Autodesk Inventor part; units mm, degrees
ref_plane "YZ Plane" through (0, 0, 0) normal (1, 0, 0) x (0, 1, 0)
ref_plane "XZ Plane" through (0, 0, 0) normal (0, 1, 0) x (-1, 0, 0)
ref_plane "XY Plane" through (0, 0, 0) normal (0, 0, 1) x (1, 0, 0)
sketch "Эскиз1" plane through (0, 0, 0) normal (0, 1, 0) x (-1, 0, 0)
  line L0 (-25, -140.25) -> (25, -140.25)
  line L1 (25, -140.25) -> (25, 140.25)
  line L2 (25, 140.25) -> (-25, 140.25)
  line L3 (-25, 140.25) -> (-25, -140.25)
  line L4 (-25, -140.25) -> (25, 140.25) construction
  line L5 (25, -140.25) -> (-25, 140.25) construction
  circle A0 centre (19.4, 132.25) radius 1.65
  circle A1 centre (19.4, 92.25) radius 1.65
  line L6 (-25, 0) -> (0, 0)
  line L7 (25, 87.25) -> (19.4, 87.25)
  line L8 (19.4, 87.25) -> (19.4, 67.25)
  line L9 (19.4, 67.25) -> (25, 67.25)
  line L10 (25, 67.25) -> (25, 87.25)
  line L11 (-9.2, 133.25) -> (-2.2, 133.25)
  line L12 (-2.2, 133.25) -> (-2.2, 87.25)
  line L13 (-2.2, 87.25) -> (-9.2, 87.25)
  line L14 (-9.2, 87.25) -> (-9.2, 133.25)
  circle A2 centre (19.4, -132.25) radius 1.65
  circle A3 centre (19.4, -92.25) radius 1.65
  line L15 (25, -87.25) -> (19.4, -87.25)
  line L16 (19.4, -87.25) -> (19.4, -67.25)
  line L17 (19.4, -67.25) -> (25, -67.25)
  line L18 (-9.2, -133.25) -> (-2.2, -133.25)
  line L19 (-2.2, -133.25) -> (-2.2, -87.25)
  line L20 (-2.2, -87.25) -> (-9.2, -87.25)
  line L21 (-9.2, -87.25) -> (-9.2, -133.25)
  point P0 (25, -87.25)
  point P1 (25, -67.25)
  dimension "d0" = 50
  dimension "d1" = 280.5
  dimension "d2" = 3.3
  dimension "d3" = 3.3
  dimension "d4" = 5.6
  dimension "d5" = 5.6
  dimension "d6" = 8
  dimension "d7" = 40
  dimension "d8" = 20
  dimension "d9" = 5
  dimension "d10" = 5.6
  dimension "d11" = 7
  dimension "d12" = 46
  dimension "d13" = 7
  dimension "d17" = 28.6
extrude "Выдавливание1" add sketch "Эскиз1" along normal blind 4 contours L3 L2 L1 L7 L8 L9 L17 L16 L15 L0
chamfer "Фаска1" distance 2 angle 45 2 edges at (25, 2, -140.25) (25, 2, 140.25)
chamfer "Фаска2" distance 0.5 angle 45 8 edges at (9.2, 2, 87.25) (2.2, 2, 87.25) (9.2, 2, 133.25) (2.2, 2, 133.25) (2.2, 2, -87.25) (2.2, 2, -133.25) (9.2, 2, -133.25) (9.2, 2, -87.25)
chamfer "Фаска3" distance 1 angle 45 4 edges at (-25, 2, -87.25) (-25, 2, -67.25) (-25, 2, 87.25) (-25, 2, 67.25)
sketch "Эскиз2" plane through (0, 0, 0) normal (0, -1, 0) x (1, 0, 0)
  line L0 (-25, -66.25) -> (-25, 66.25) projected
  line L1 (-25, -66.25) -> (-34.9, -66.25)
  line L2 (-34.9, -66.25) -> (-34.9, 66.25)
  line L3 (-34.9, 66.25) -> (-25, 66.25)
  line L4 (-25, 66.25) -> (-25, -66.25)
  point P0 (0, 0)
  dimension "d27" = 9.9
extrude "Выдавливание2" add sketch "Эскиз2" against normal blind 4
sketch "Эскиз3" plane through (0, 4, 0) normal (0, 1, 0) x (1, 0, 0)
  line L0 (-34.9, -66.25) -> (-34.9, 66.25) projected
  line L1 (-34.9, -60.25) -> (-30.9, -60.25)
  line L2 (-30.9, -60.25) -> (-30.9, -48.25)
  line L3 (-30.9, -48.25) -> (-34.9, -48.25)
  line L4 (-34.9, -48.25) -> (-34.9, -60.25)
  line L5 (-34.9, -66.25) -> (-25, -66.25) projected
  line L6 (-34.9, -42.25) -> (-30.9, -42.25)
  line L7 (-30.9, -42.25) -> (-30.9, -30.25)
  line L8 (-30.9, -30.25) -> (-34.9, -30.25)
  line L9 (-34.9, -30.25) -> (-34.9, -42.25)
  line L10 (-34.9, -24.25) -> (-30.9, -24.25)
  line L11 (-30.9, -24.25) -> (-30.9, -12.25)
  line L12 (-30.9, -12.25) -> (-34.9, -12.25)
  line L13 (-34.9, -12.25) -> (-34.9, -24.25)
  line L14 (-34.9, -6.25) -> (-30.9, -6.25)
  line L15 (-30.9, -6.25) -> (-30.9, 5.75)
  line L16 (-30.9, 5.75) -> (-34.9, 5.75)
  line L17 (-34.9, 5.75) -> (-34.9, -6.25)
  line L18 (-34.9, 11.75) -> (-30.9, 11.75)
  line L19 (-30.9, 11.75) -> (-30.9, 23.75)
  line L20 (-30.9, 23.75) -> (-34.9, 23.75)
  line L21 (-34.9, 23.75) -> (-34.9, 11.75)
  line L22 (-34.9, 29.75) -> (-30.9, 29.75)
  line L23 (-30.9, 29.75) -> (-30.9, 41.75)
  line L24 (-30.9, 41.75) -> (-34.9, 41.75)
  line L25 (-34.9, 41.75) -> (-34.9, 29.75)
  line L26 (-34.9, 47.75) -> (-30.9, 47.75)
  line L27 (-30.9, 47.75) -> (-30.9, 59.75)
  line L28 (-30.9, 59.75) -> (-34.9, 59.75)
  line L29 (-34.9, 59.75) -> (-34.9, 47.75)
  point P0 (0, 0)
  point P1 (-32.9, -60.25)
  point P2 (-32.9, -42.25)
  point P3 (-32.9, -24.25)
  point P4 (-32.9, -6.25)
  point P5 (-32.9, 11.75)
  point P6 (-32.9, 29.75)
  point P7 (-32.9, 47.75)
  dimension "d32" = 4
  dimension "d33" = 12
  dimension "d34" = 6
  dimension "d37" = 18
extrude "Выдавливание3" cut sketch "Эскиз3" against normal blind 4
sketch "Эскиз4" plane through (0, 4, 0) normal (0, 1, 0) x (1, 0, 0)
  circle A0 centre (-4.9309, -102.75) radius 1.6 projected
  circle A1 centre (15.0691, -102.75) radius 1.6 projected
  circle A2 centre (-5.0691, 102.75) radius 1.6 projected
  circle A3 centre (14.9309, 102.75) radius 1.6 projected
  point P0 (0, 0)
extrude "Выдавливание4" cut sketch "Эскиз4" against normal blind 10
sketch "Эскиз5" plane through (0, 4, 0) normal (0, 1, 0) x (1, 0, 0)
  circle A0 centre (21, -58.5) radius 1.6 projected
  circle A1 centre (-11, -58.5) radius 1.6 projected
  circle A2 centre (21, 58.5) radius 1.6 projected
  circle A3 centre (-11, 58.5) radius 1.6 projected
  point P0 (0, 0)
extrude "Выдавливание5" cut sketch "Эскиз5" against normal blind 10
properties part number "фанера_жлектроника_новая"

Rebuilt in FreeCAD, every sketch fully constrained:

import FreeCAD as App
import Part
import Sketcher

V = App.Vector


def edges_at(feature, points):
    """Names of the edges that pass closest to the given points."""
    edges = feature.Shape.Edges
    near = lambda p: min(range(len(edges)), key=lambda i: edges[i].distToShape(Part.Vertex(*p))[0])
    return sorted({f"Edge{near(p) + 1}" for p in points})


def add_polygon(sketch, points):
    """Adds a closed chain of lines whose ends are joined by coincident constraints."""
    first, n = sketch.GeometryCount, len(points)
    for a, b in zip(points, points[1:] + points[:1]):
        sketch.addGeometry(Part.LineSegment(App.Vector(*a, 0), App.Vector(*b, 0)), False)
    for i in range(n):
        sketch.addConstraint(Sketcher.Constraint("Coincident", first + i, 2, first + (i + 1) % n, 1))

doc = App.newDocument("Part")
params = doc.addObject("Spreadsheet::Sheet", "Params")
for row, (alias, value) in enumerate([
    ("sketch1_diameter", "3.3 mm"),
    ("sketch1_width", "50 mm"),
    ("sketch1_width2", "7 mm"),
    ("sketch1_height", "20 mm"),
    ("sketch1_height2", "46 mm"),
    ("pad1_length", "4 mm"),
    ("chamfer_size", "2 mm"),
    ("chamfer2_size", "0.5 mm"),
    ("chamfer3_size", "1 mm"),
    ("sketch2_width", "9.9 mm"),
    ("sketch2_height", "132.5 mm"),
    ("pad2_length", "4 mm"),
    ("sketch3_width", "4 mm"),
    ("sketch3_height", "12 mm"),
    ("pocket1_length", "4 mm"),
    ("sketch4_diameter", "3.2 mm"),
    ("pocket2_length", "10 mm"),
    ("sketch5_diameter", "3.2 mm"),
    ("pocket3_length", "10 mm"),
], start=1):
    params.set(f"A{row}", alias)
    params.set(f"B{row}", "=" + value)
    params.setAlias(f"B{row}", alias)

body = doc.addObject("PartDesign::Body", "Body")

# Sketch on XZ plane
sketch1 = body.newObject("Sketcher::SketchObject", "Sketch")
sketch1.AttachmentSupport = (doc.getObject("XZ_Plane"), [""])
sketch1.MapMode = "FlatFace"
add_polygon(sketch1, [(25, 140.2), (25, -140.2), (-25, -140.2), (-25, -87.2), (-19.4, -87.2), (-19.4, -67.2), (-25, -67.2), (-25, 67.2), (-19.4, 67.2), (-19.4, 87.2), (-25, 87.2), (-25, 140.2)])  # lines 0-11
add_polygon(sketch1, [(2.2, -133.2), (9.2, -133.2), (9.2, -87.2), (2.2, -87.2)])  # lines 12-15
sketch1.addGeometry(Part.Circle(V(-19.4, -132.2, 0), V(0, 0, 1), 1.6), False)  # 16
sketch1.addGeometry(Part.Circle(V(-19.4, -92.2, 0), V(0, 0, 1), 1.6), False)  # 17
add_polygon(sketch1, [(9.2, 87.2), (9.2, 133.2), (2.2, 133.2), (2.2, 87.2)])  # lines 18-21
sketch1.addGeometry(Part.Circle(V(-19.4, 92.2, 0), V(0, 0, 1), 1.6), False)  # 22
sketch1.addGeometry(Part.Circle(V(-19.4, 132.2, 0), V(0, 0, 1), 1.6), False)  # 23
sketch1.addConstraint([
    Sketcher.Constraint("Vertical", 0),
    Sketcher.Constraint("Horizontal", 1),
    Sketcher.Constraint("Vertical", 2),
    Sketcher.Constraint("Horizontal", 3),
    Sketcher.Constraint("Vertical", 4),
    Sketcher.Constraint("Horizontal", 5),
    Sketcher.Constraint("Vertical", 6),
    Sketcher.Constraint("Horizontal", 7),
    Sketcher.Constraint("Vertical", 8),
    Sketcher.Constraint("Horizontal", 9),
    Sketcher.Constraint("Vertical", 10),
    Sketcher.Constraint("Horizontal", 11),
    Sketcher.Constraint("Horizontal", 12),
    Sketcher.Constraint("Vertical", 13),
    Sketcher.Constraint("Horizontal", 14),
    Sketcher.Constraint("Vertical", 15),
    Sketcher.Constraint("Vertical", 18),
    Sketcher.Constraint("Horizontal", 19),
    Sketcher.Constraint("Vertical", 20),
    Sketcher.Constraint("Horizontal", 21),
    Sketcher.Constraint("Equal", 16, 17),
    Sketcher.Constraint("Equal", 17, 22),
    Sketcher.Constraint("Equal", 22, 23),
    Sketcher.Constraint("Symmetric", 0, 2, 10, 2, -1, 1),
    Sketcher.Constraint("Symmetric", 17, 3, 22, 3, -1),
    Sketcher.Constraint("Symmetric", 16, 3, 23, 3, -1),
    Sketcher.Constraint("Symmetric", 4, 2, 7, 2, -1),
    Sketcher.Constraint("Symmetric", 2, 2, 9, 2, -1),
    Sketcher.Constraint("Symmetric", 12, 2, 18, 2, -1),
    Sketcher.Constraint("Symmetric", 14, 2, 20, 2, -1),
    Sketcher.Constraint("Horizontal", 3, 2, 13, 2),
    Sketcher.Constraint("Vertical", 16, 3, 17, 3),
    Sketcher.Constraint("Vertical", 23, 3, 3, 2),
    Sketcher.Constraint("Vertical", 2, 2, 5, 2),
    Sketcher.Constraint("Diameter", 16, 3.3),
    Sketcher.Constraint("DistanceX", 1, 2, 1, 1, 50.0),
    Sketcher.Constraint("DistanceX", 12, 1, 12, 2, 7.0),
    Sketcher.Constraint("DistanceY", 4, 1, 4, 2, 20.0),
    Sketcher.Constraint("DistanceY", 13, 1, 13, 2, 46.0),
    Sketcher.Constraint("DistanceX", 3, 1, 3, 2, 5.6),
    Sketcher.Constraint("DistanceY", 0, 2, 0, 1, 280.5),
    Sketcher.Constraint("DistanceY", 16, 3, 17, 3, 40.0),
    Sketcher.Constraint("DistanceY", 0, 2, 16, 3, 8.0),
    Sketcher.Constraint("DistanceY", 17, 3, 2, 2, 5.0),
    Sketcher.Constraint("DistanceX", 16, 3, 12, 2, 28.6),
])
sketch1.setExpression("Constraints[54]", "Params.sketch1_diameter")
sketch1.setExpression("Constraints[55]", "Params.sketch1_width")
sketch1.setExpression("Constraints[56]", "Params.sketch1_width2")
sketch1.setExpression("Constraints[57]", "Params.sketch1_height")
sketch1.setExpression("Constraints[58]", "Params.sketch1_height2")
pad1 = body.newObject("PartDesign::Pad", "Pad")
pad1.Profile = sketch1
pad1.setExpression("Length", "Params.pad1_length")
pad1.Reversed = True
doc.recompute()

chamfer = body.newObject("PartDesign::Chamfer", "Chamfer")
chamfer.Base = (pad1, edges_at(pad1, [(25, 2, -140.25), (25, 2, 140.25)]))
chamfer.setExpression("Size", "Params.chamfer_size")
doc.recompute()

chamfer2 = body.newObject("PartDesign::Chamfer", "Chamfer001")
chamfer2.Base = (chamfer, edges_at(chamfer, [
    (9.2, 2, 87.25),
    (2.2, 2, 87.25),
    (9.2, 2, 133.25),
    (2.2, 2, 133.25),
    (2.2, 2, -87.25),
    (2.2, 2, -133.25),
    (9.2, 2, -133.25),
    (9.2, 2, -87.25),
]))
chamfer2.setExpression("Size", "Params.chamfer2_size")
doc.recompute()

chamfer3 = body.newObject("PartDesign::Chamfer", "Chamfer002")
chamfer3.Base = (chamfer2, edges_at(chamfer2, [
    (-25, 2, -87.25),
    (-25, 2, -67.25),
    (-25, 2, 87.25),
    (-25, 2, 67.25),
]))
chamfer3.setExpression("Size", "Params.chamfer3_size")

# Sketch on XZ plane
sketch2 = body.newObject("Sketcher::SketchObject", "Sketch001")
sketch2.AttachmentSupport = (doc.getObject("XZ_Plane"), [""])
sketch2.MapMode = "FlatFace"
add_polygon(sketch2, [(-35, -66), (-25, -66), (-25, 66), (-35, 66)])  # lines 0-3
sketch2.addConstraint([
    Sketcher.Constraint("Horizontal", 0),
    Sketcher.Constraint("Vertical", 1),
    Sketcher.Constraint("Horizontal", 2),
    Sketcher.Constraint("Vertical", 3),
    Sketcher.Constraint("DistanceX", 0, 1, 0, 2, 9.9),
    Sketcher.Constraint("DistanceY", 1, 1, 1, 2, 132.5),
    Sketcher.Constraint("DistanceX", 0, 2, -1, 1, 25.0),
    Sketcher.Constraint("DistanceY", 0, 2, -1, 1, 66.25),
])
sketch2.setExpression("Constraints[8]", "Params.sketch2_width")
sketch2.setExpression("Constraints[9]", "Params.sketch2_height")
pad2 = body.newObject("PartDesign::Pad", "Pad001")
pad2.Profile = sketch2
pad2.setExpression("Length", "Params.pad2_length")
pad2.Reversed = True

# Sketch on XZ plane
sketch3 = body.newObject("Sketcher::SketchObject", "Sketch002")
sketch3.AttachmentSupport = (doc.getObject("XZ_Plane"), [""])
sketch3.MapMode = "FlatFace"
sketch3.AttachmentOffset = App.Placement(V(0, 0, -4), App.Rotation())
add_polygon(sketch3, [(-34.9, -59.8), (-34.9, -47.8), (-30.9, -47.8), (-30.9, -59.8)])  # lines 0-3
add_polygon(sketch3, [(-34.9, -41.8), (-34.9, -29.8), (-30.9, -29.8), (-30.9, -41.8)])  # lines 4-7
add_polygon(sketch3, [(-34.9, -23.8), (-34.9, -11.8), (-30.9, -11.8), (-30.9, -23.8)])  # lines 8-11
add_polygon(sketch3, [(-34.9, -5.8), (-34.9, 6.2), (-30.9, 6.2), (-30.9, -5.8)])  # lines 12-15
add_polygon(sketch3, [(-34.9, 12.2), (-34.9, 24.2), (-30.9, 24.2), (-30.9, 12.2)])  # lines 16-19
add_polygon(sketch3, [(-34.9, 30.2), (-34.9, 42.2), (-30.9, 42.2), (-30.9, 30.2)])  # lines 20-23
add_polygon(sketch3, [(-34.9, 48.2), (-34.9, 60.2), (-30.9, 60.2), (-30.9, 48.2)])  # lines 24-27
sketch3.addConstraint([
    Sketcher.Constraint("Vertical", 0),
    Sketcher.Constraint("Horizontal", 1),
    Sketcher.Constraint("Vertical", 2),
    Sketcher.Constraint("Horizontal", 3),
    Sketcher.Constraint("Vertical", 4),
    Sketcher.Constraint("Horizontal", 5),
    Sketcher.Constraint("Vertical", 6),
    Sketcher.Constraint("Horizontal", 7),
    Sketcher.Constraint("Vertical", 8),
    Sketcher.Constraint("Horizontal", 9),
    Sketcher.Constraint("Vertical", 10),
    Sketcher.Constraint("Horizontal", 11),
    Sketcher.Constraint("Vertical", 12),
    Sketcher.Constraint("Horizontal", 13),
    Sketcher.Constraint("Vertical", 14),
    Sketcher.Constraint("Horizontal", 15),
    Sketcher.Constraint("Vertical", 16),
    Sketcher.Constraint("Horizontal", 17),
    Sketcher.Constraint("Vertical", 18),
    Sketcher.Constraint("Horizontal", 19),
    Sketcher.Constraint("Vertical", 20),
    Sketcher.Constraint("Horizontal", 21),
    Sketcher.Constraint("Vertical", 22),
    Sketcher.Constraint("Horizontal", 23),
    Sketcher.Constraint("Vertical", 24),
    Sketcher.Constraint("Horizontal", 25),
    Sketcher.Constraint("Vertical", 26),
    Sketcher.Constraint("Horizontal", 27),
    Sketcher.Constraint("Vertical", 3, 2, 4, 2),
    Sketcher.Constraint("Vertical", 2, 2, 5, 2),
    Sketcher.Constraint("Vertical", 7, 2, 8, 2),
    Sketcher.Constraint("Vertical", 6, 2, 9, 2),
    Sketcher.Constraint("Vertical", 11, 2, 12, 2),
    Sketcher.Constraint("Vertical", 10, 2, 13, 2),
    Sketcher.Constraint("Vertical", 15, 2, 16, 2),
    Sketcher.Constraint("Vertical", 14, 2, 17, 2),
    Sketcher.Constraint("Vertical", 19, 2, 20, 2),
    Sketcher.Constraint("Vertical", 18, 2, 21, 2),
    Sketcher.Constraint("Vertical", 23, 2, 24, 2),
    Sketcher.Constraint("Vertical", 22, 2, 25, 2),
    Sketcher.Constraint("Equal", 2, 4),
    Sketcher.Constraint("Equal", 6, 8),
    Sketcher.Constraint("Equal", 10, 12),
    Sketcher.Constraint("Equal", 14, 16),
    Sketcher.Constraint("Equal", 18, 20),
    Sketcher.Constraint("Equal", 22, 24),
    Sketcher.Constraint("DistanceX", 1, 1, 1, 2, 4.0),
    Sketcher.Constraint("DistanceY", 0, 1, 0, 2, 12.0),
    Sketcher.Constraint("DistanceY", 0, 2, 4, 2, 18.0),
    Sketcher.Constraint("DistanceY", 4, 2, 8, 2, 18.0),
    Sketcher.Constraint("DistanceY", 8, 2, 12, 2, 18.0),
    Sketcher.Constraint("DistanceY", 12, 2, 16, 2, 18.0),
    Sketcher.Constraint("DistanceY", 16, 2, 20, 2, 18.0),
    Sketcher.Constraint("DistanceY", 20, 2, 24, 2, 18.0),
    Sketcher.Constraint("DistanceX", 0, 2, -1, 1, 34.9),
    Sketcher.Constraint("DistanceY", 0, 2, -1, 1, 47.75),
])
sketch3.setExpression("Constraints[74]", "Params.sketch3_width")
sketch3.setExpression("Constraints[75]", "Params.sketch3_height")
pocket1 = body.newObject("PartDesign::Pocket", "Pocket")
pocket1.Profile = sketch3
pocket1.setExpression("Length", "Params.pocket1_length")
pocket1.Reversed = True

# Sketch on XZ plane
sketch4 = body.newObject("Sketcher::SketchObject", "Sketch003")
sketch4.AttachmentSupport = (doc.getObject("XZ_Plane"), [""])
sketch4.MapMode = "FlatFace"
sketch4.AttachmentOffset = App.Placement(V(0, 0, -4), App.Rotation())
sketch4.addGeometry([
    Part.Circle(V(-4.9, 102.8, 0), V(0, 0, 1), 1.6),
    Part.Circle(V(15.1, 102.8, 0), V(0, 0, 1), 1.6),
    Part.Circle(V(-5.1, -102.8, 0), V(0, 0, 1), 1.6),
    Part.Circle(V(14.9, -102.8, 0), V(0, 0, 1), 1.6),
], False)
sketch4.addConstraint([
    Sketcher.Constraint("Equal", 0, 1),
    Sketcher.Constraint("Equal", 1, 2),
    Sketcher.Constraint("Equal", 2, 3),
    Sketcher.Constraint("Horizontal", 0, 3, 1, 3),
    Sketcher.Constraint("Horizontal", 2, 3, 3, 3),
    Sketcher.Constraint("Diameter", 0, 3.2),
    Sketcher.Constraint("DistanceX", 0, 3, 1, 3, 20.0),
    Sketcher.Constraint("DistanceX", 2, 3, 3, 3, 20.0),
    Sketcher.Constraint("DistanceY", 2, 3, 0, 3, 205.5),
    Sketcher.Constraint("DistanceY", -1, 1, 0, 3, 102.75),
    Sketcher.Constraint("DistanceX", 0, 3, -1, 1, 4.931),
    Sketcher.Constraint("DistanceX", 2, 3, -1, 1, 5.069),
])
sketch4.setExpression("Constraints[5]", "Params.sketch4_diameter")
pocket2 = body.newObject("PartDesign::Pocket", "Pocket001")
pocket2.Profile = sketch4
pocket2.setExpression("Length", "Params.pocket2_length")
pocket2.Reversed = True

# Sketch on XZ plane
sketch5 = body.newObject("Sketcher::SketchObject", "Sketch004")
sketch5.AttachmentSupport = (doc.getObject("XZ_Plane"), [""])
sketch5.MapMode = "FlatFace"
sketch5.AttachmentOffset = App.Placement(V(0, 0, -4), App.Rotation())
sketch5.addGeometry([
    Part.Circle(V(21, 58.5, 0), V(0, 0, 1), 1.6),
    Part.Circle(V(-11, 58.5, 0), V(0, 0, 1), 1.6),
    Part.Circle(V(21, -58.5, 0), V(0, 0, 1), 1.6),
    Part.Circle(V(-11, -58.5, 0), V(0, 0, 1), 1.6),
], False)
sketch5.addConstraint([
    Sketcher.Constraint("Equal", 0, 1),
    Sketcher.Constraint("Equal", 1, 2),
    Sketcher.Constraint("Equal", 2, 3),
    Sketcher.Constraint("Symmetric", 0, 3, 2, 3, -1),
    Sketcher.Constraint("Symmetric", 1, 3, 3, 3, -1),
    Sketcher.Constraint("Horizontal", 0, 3, 1, 3),
    Sketcher.Constraint("Diameter", 0, 3.2),
    Sketcher.Constraint("DistanceX", -1, 1, 0, 3, 21.0),
    Sketcher.Constraint("DistanceX", 1, 3, -1, 1, 11.0),
    Sketcher.Constraint("DistanceY", 2, 3, 0, 3, 117.0),
])
sketch5.setExpression("Constraints[6]", "Params.sketch5_diameter")
pocket3 = body.newObject("PartDesign::Pocket", "Pocket002")
pocket3.Profile = sketch5
pocket3.setExpression("Length", "Params.pocket3_length")
pocket3.Reversed = True

doc.recompute()
